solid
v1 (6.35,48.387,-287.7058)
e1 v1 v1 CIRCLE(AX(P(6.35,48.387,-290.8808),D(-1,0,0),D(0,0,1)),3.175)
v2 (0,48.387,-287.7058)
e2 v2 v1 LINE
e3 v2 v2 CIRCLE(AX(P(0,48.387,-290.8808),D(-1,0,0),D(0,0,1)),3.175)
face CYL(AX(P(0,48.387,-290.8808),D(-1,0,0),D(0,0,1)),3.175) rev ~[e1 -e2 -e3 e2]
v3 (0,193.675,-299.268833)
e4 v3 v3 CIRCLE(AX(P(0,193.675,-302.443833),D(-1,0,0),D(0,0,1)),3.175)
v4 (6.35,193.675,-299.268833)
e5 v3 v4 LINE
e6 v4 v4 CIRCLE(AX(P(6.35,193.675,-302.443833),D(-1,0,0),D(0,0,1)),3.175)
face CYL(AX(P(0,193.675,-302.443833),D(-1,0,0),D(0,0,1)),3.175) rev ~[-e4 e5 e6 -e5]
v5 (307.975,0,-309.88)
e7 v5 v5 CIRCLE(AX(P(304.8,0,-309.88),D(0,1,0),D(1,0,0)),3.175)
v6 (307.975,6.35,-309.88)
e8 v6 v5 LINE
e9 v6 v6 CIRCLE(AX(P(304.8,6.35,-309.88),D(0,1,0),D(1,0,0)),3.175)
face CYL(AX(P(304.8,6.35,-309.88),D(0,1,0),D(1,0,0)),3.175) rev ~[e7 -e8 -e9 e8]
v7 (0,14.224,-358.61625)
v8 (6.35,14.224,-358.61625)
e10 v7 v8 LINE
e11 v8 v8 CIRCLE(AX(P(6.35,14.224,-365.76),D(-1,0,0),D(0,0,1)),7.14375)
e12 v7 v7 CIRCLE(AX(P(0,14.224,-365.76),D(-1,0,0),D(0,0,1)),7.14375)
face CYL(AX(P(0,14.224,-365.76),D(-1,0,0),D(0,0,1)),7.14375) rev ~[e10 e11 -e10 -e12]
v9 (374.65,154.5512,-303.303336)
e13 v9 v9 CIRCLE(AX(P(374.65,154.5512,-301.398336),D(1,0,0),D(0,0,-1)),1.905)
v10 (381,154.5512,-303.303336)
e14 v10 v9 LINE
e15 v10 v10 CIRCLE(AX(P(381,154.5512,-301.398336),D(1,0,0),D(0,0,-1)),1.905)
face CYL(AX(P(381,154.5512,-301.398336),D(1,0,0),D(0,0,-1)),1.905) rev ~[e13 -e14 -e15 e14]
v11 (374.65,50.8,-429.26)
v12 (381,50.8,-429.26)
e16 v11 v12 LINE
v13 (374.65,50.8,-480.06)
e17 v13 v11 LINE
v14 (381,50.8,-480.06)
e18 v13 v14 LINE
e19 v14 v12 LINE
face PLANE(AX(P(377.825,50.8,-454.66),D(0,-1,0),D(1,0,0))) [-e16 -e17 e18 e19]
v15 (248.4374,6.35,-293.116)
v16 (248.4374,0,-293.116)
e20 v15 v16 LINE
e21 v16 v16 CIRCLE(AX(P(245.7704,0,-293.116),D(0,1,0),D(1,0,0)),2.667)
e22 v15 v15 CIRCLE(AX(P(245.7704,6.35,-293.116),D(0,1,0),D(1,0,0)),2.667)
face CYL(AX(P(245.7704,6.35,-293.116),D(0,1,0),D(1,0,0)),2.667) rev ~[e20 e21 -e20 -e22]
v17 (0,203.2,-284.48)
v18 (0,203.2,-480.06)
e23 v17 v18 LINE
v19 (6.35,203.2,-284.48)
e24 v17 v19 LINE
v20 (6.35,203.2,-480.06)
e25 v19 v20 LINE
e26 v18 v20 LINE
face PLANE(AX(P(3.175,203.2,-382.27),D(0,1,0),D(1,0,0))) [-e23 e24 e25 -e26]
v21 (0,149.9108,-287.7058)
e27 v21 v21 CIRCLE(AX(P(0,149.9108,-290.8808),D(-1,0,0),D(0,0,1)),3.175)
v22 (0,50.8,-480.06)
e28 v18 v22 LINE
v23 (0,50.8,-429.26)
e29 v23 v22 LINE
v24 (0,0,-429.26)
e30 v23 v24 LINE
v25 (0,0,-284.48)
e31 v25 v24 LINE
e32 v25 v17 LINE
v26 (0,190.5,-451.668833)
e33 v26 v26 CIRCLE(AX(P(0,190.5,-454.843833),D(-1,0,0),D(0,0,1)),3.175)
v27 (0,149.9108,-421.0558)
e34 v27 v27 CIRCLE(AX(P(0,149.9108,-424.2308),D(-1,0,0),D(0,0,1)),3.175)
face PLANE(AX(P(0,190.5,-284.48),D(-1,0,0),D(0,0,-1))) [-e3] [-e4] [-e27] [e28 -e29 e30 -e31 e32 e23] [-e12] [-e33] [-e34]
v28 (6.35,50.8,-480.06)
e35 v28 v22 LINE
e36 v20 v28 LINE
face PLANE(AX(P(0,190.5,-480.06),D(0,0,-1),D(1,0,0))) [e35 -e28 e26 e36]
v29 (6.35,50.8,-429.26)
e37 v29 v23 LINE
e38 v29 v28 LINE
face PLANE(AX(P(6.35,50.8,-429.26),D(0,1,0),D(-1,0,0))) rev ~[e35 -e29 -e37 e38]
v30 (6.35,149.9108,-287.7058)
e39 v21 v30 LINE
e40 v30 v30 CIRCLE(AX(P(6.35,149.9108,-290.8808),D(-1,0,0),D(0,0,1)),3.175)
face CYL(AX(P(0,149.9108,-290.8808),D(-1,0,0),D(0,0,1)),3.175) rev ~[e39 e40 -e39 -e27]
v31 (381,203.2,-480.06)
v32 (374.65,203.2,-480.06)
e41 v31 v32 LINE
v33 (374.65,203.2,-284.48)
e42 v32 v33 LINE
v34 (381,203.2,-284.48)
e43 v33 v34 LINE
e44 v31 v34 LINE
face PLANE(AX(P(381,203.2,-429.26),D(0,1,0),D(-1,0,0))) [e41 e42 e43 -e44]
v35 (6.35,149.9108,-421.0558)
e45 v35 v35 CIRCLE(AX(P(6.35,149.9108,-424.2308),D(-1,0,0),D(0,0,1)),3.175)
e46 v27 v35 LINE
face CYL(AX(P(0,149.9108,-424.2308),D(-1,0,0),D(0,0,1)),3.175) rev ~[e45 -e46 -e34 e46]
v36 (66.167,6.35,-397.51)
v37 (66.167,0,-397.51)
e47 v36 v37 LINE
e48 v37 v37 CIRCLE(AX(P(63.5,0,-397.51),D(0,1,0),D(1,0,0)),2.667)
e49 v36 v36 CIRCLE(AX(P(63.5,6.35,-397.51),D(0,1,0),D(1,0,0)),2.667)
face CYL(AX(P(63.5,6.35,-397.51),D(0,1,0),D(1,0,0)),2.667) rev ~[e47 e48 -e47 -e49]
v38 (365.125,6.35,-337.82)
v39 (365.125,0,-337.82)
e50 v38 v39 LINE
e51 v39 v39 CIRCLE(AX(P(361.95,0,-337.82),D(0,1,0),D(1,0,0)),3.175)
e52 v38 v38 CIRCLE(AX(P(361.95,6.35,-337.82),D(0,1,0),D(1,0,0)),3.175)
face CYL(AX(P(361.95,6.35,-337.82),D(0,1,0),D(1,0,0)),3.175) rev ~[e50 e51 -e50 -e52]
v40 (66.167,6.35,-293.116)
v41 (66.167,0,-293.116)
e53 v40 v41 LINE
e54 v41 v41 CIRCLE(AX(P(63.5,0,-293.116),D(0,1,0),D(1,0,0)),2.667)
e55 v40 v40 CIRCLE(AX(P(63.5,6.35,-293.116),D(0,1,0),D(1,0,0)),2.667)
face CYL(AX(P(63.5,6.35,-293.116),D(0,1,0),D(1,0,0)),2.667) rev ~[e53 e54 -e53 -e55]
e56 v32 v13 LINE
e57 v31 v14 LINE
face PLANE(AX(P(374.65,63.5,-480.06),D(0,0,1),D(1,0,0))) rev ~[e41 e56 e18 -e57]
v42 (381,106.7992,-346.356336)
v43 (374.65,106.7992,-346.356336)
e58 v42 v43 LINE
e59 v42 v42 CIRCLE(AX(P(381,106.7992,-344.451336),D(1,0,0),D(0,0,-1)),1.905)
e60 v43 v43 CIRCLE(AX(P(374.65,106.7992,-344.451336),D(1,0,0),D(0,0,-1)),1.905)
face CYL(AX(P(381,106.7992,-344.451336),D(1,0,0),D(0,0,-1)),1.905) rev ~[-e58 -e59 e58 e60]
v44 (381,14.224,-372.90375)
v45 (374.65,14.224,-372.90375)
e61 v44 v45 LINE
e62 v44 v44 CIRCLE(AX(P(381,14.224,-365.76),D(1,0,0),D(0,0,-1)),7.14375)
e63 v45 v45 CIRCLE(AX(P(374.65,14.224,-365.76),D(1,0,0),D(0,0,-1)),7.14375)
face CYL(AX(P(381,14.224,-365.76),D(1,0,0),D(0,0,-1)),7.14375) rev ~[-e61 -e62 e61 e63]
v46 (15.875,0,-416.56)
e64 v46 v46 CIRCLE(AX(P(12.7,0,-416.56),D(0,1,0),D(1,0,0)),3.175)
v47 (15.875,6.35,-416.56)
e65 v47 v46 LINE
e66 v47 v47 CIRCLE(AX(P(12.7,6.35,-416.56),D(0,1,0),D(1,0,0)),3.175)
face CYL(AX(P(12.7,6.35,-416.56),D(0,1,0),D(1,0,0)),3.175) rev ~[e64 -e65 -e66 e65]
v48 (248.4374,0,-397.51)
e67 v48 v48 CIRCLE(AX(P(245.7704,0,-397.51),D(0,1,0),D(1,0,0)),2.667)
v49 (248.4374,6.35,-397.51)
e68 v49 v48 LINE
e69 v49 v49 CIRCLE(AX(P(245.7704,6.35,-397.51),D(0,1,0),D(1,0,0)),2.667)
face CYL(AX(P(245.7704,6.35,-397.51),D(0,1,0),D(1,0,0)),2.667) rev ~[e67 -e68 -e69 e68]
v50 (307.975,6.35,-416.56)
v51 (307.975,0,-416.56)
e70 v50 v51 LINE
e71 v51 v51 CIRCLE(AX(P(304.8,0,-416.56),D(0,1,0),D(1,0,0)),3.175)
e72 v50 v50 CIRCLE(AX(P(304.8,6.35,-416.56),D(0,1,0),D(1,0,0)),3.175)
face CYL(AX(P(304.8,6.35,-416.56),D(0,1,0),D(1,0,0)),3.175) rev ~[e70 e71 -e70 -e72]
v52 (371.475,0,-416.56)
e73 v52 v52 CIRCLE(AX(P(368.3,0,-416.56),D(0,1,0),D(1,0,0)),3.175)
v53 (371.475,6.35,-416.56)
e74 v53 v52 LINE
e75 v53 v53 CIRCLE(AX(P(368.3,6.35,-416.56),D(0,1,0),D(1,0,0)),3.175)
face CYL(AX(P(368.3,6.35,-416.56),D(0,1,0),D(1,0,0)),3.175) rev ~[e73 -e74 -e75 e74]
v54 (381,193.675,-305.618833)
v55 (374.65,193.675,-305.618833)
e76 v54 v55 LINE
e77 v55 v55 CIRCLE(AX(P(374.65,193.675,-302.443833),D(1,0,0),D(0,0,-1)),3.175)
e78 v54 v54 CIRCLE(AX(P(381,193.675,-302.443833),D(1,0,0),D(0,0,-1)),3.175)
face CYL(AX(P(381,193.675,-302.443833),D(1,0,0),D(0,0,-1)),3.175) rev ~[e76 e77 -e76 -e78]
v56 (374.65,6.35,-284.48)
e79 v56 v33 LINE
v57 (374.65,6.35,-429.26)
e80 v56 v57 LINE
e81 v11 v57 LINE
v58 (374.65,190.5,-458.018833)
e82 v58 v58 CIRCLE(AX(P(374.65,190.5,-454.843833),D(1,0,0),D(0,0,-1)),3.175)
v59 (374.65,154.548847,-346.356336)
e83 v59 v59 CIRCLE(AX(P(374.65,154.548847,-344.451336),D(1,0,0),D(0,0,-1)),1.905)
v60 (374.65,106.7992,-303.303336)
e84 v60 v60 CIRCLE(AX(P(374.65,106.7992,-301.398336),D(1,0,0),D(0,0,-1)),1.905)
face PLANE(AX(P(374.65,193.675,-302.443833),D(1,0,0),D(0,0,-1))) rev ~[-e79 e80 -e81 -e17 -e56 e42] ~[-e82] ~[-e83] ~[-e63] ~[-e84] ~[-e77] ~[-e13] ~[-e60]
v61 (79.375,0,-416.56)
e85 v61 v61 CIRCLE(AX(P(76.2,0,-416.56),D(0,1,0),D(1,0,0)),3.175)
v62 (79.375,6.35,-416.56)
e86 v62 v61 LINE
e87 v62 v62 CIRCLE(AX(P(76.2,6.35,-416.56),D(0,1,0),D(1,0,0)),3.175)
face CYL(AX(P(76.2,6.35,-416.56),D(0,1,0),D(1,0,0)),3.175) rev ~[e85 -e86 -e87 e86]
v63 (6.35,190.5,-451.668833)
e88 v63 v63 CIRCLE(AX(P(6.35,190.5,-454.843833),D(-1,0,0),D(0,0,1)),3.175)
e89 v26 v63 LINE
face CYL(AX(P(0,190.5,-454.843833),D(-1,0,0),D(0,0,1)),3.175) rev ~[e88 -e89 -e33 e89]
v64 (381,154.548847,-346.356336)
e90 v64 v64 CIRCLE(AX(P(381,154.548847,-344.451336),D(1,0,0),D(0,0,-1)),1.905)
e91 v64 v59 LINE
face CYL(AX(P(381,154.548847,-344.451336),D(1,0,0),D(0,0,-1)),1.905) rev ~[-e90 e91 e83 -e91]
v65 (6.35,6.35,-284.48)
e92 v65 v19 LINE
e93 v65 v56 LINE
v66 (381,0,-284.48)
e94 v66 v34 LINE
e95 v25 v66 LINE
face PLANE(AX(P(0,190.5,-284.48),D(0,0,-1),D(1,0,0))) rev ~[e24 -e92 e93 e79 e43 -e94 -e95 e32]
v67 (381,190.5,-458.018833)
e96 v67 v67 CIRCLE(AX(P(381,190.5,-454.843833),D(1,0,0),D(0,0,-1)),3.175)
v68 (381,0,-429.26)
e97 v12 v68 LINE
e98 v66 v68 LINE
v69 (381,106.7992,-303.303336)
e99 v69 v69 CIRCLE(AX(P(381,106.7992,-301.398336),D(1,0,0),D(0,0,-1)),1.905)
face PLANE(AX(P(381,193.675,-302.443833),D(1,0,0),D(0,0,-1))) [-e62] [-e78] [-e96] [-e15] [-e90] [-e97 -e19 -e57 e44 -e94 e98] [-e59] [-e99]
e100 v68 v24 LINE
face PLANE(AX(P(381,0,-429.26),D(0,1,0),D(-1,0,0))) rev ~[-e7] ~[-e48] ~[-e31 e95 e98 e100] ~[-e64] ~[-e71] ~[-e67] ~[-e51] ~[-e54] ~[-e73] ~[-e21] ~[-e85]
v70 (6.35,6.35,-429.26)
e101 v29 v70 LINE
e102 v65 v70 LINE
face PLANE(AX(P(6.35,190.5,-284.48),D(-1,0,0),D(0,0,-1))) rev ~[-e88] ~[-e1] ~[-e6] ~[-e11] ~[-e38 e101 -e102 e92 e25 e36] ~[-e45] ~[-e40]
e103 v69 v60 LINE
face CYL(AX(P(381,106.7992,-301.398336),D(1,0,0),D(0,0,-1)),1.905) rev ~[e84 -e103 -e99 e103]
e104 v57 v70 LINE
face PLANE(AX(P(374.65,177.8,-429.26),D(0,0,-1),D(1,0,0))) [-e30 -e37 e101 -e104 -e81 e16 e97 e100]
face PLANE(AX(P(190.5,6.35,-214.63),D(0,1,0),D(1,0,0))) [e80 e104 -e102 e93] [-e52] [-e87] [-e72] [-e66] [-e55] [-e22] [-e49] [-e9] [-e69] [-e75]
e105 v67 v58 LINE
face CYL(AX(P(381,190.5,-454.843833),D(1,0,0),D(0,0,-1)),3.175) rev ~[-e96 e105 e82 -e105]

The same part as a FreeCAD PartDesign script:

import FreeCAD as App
import Part
import Sketcher

V = App.Vector
Q = App.Units.Quantity


def add_polygon(sketch, points):
    """Adds a closed chain of lines whose ends are joined by coincident constraints."""
    first, n = sketch.GeometryCount, len(points)
    for a, b in zip(points, points[1:] + points[:1]):
        sketch.addGeometry(Part.LineSegment(App.Vector(*a, 0), App.Vector(*b, 0)), False)
    for i in range(n):
        sketch.addConstraint(Sketcher.Constraint("Coincident", first + i, 2, first + (i + 1) % n, 1))

doc = App.newDocument("Part")
body = doc.addObject("PartDesign::Body", "Body")

# Sketch on XZ plane
sketch1 = body.newObject("Sketcher::SketchObject", "Sketch")
sketch1.AttachmentSupport = (doc.getObject("XZ_Plane"), [""])
sketch1.MapMode = "FlatFace"
add_polygon(sketch1, [(0, -429), (0, 0), (381, 0), (381, -429)])  # lines 0-3
sketch1.addConstraint(Sketcher.Constraint("Vertical", 0))
sketch1.addConstraint(Sketcher.Constraint("Horizontal", 1))
sketch1.addConstraint(Sketcher.Constraint("Vertical", 2))
sketch1.addConstraint(Sketcher.Constraint("Horizontal", 3))
sketch1.addConstraint(Sketcher.Constraint("Coincident", 0, 2, -1, 1))
sketch1.addConstraint(Sketcher.Constraint("DistanceX", 1, 1, 1, 2, Q("15 in")))
sketch1.addConstraint(Sketcher.Constraint("DistanceY", 0, 1, 0, 2, Q("16.9 in")))
pad1 = body.newObject("PartDesign::Pad", "Pad")
pad1.Profile = sketch1
pad1.Length = Q("0.25 in")
pad1.Reversed = True

# Sketch on XZ plane
sketch2 = body.newObject("Sketcher::SketchObject", "Sketch001")
sketch2.AttachmentSupport = (doc.getObject("XZ_Plane"), [""])
sketch2.MapMode = "FlatFace"
sketch2.AttachmentOffset = App.Placement(V(0, 0, -0.25 * 25.4), App.Rotation())
add_polygon(sketch2, [(64, -203), (64, 0), (318, 0), (318, -203)])  # lines 0-3
sketch2.addConstraint(Sketcher.Constraint("Vertical", 0))
sketch2.addConstraint(Sketcher.Constraint("Horizontal", 1))
sketch2.addConstraint(Sketcher.Constraint("Vertical", 2))
sketch2.addConstraint(Sketcher.Constraint("Horizontal", 3))
sketch2.addConstraint(Sketcher.Constraint("PointOnObject", 0, 2, -1))
sketch2.addConstraint(Sketcher.Constraint("DistanceX", 1, 1, 1, 2, Q("10 in")))
sketch2.addConstraint(Sketcher.Constraint("DistanceY", 0, 1, 0, 2, Q("8 in")))
sketch2.addConstraint(Sketcher.Constraint("DistanceX", -1, 1, 0, 2, Q("2.5 in")))
pocket1 = body.newObject("PartDesign::Pocket", "Pocket")
pocket1.Profile = sketch2
pocket1.Length = Q("0.25 in")
pocket1.Reversed = True

# Sketch on XZ plane
sketch3 = body.newObject("Sketcher::SketchObject", "Sketch002")
sketch3.AttachmentSupport = (doc.getObject("XZ_Plane"), [""])
sketch3.MapMode = "FlatFace"
sketch3.AttachmentOffset = App.Placement(V(0, 0, -0.25 * 25.4), App.Rotation())
add_polygon(sketch3, [(0, -74), (0, 0), (381, 0), (381, -74)])  # lines 0-3
sketch3.addConstraint(Sketcher.Constraint("Vertical", 0))
sketch3.addConstraint(Sketcher.Constraint("Horizontal", 1))
sketch3.addConstraint(Sketcher.Constraint("Vertical", 2))
sketch3.addConstraint(Sketcher.Constraint("Horizontal", 3))
sketch3.addConstraint(Sketcher.Constraint("Coincident", 0, 2, -1, 1))
sketch3.addConstraint(Sketcher.Constraint("DistanceX", 1, 1, 1, 2, Q("15 in")))
sketch3.addConstraint(Sketcher.Constraint("DistanceY", 0, 1, 0, 2, Q("2.9 in")))
pocket2 = body.newObject("PartDesign::Pocket", "Pocket001")
pocket2.Profile = sketch3
pocket2.Length = Q("0.25 in")
pocket2.Reversed = True

# Sketch on XY plane
sketch4 = body.newObject("Sketcher::SketchObject", "Sketch003")
sketch4.AttachmentSupport = (doc.getObject("XY_Plane"), [""])
sketch4.MapMode = "FlatFace"
sketch4.AttachmentOffset = App.Placement(V(0, 0, -8 * 25.4), App.Rotation())
add_polygon(sketch4, [(64, 6), (64, 0), (318, 0), (318, 6)])  # lines 0-3
sketch4.addConstraint(Sketcher.Constraint("Vertical", 0))
sketch4.addConstraint(Sketcher.Constraint("Horizontal", 1))
sketch4.addConstraint(Sketcher.Constraint("Vertical", 2))
sketch4.addConstraint(Sketcher.Constraint("Horizontal", 3))
sketch4.addConstraint(Sketcher.Constraint("PointOnObject", 0, 2, -1))
sketch4.addConstraint(Sketcher.Constraint("DistanceX", 1, 1, 1, 2, Q("10 in")))
sketch4.addConstraint(Sketcher.Constraint("DistanceY", 0, 2, 0, 1, Q("0.25 in")))
sketch4.addConstraint(Sketcher.Constraint("DistanceX", -1, 1, 0, 2, Q("2.5 in")))
pocket3 = body.newObject("PartDesign::Pocket", "Pocket002")
pocket3.Profile = sketch4
pocket3.Length = Q("2.9 in")

# Sketch on XZ plane
sketch5 = body.newObject("Sketcher::SketchObject", "Sketch004")
sketch5.AttachmentSupport = (doc.getObject("XZ_Plane"), [""])
sketch5.MapMode = "FlatFace"
sketch5.AttachmentOffset = App.Placement(V(0, 0, -0.25 * 25.4), App.Rotation())
add_polygon(sketch5, [(375, -429), (375, -234), (381, -234), (381, -429)])  # lines 0-3
sketch5.addConstraint(Sketcher.Constraint("Vertical", 0))
sketch5.addConstraint(Sketcher.Constraint("Horizontal", 1))
sketch5.addConstraint(Sketcher.Constraint("Vertical", 2))
sketch5.addConstraint(Sketcher.Constraint("Horizontal", 3))
sketch5.addConstraint(Sketcher.Constraint("DistanceY", 0, 1, 0, 2, Q("7.7 in")))
sketch5.addConstraint(Sketcher.Constraint("DistanceX", -1, 1, 1, 2, Q("15 in")))
sketch5.addConstraint(Sketcher.Constraint("DistanceX", 1, 1, 1, 2, Q("0.25 in")))
sketch5.addConstraint(Sketcher.Constraint("DistanceY", 0, 2, -1, 1, Q("9.2 in")))
pad2 = body.newObject("PartDesign::Pad", "Pad001")
pad2.Profile = sketch5
pad2.Length = Q("6.75 in")
pad2.Reversed = True

# Sketch on XZ plane
sketch6 = body.newObject("Sketcher::SketchObject", "Sketch005")
sketch6.AttachmentSupport = (doc.getObject("XZ_Plane"), [""])
sketch6.MapMode = "FlatFace"
sketch6.AttachmentOffset = App.Placement(V(0, 0, -0.25 * 25.4), App.Rotation())
add_polygon(sketch6, [(0, -429), (0, -234), (6, -234), (6, -429)])  # lines 0-3
sketch6.addConstraint(Sketcher.Constraint("Vertical", 0))
sketch6.addConstraint(Sketcher.Constraint("Horizontal", 1))
sketch6.addConstraint(Sketcher.Constraint("Vertical", 2))
sketch6.addConstraint(Sketcher.Constraint("Horizontal", 3))
sketch6.addConstraint(Sketcher.Constraint("PointOnObject", 0, 2, -2))
sketch6.addConstraint(Sketcher.Constraint("DistanceY", 0, 1, 0, 2, Q("7.7 in")))
sketch6.addConstraint(Sketcher.Constraint("DistanceX", 1, 1, 1, 2, Q("0.25 in")))
sketch6.addConstraint(Sketcher.Constraint("DistanceY", 0, 2, -1, 1, Q("9.2 in")))
pad3 = body.newObject("PartDesign::Pad", "Pad002")
pad3.Profile = sketch6
pad3.Length = Q("6.25 in")
pad3.Reversed = True

# Sketch on XY plane
sketch7 = body.newObject("Sketcher::SketchObject", "Sketch006")
sketch7.AttachmentSupport = (doc.getObject("XY_Plane"), [""])
sketch7.MapMode = "FlatFace"
sketch7.AttachmentOffset = App.Placement(V(0, 0, -16.9 * 25.4), App.Rotation())
add_polygon(sketch7, [(6, 165), (6, 0), (0, 0), (0, 165)])  # lines 0-3
sketch7.addConstraint(Sketcher.Constraint("Vertical", 0))
sketch7.addConstraint(Sketcher.Constraint("Horizontal", 1))
sketch7.addConstraint(Sketcher.Constraint("Vertical", 2))
sketch7.addConstraint(Sketcher.Constraint("Horizontal", 3))
sketch7.addConstraint(Sketcher.Constraint("Coincident", 1, 2, -1, 1))
sketch7.addConstraint(Sketcher.Constraint("DistanceY", 0, 2, 0, 1, Q("6.5 in")))
sketch7.addConstraint(Sketcher.Constraint("DistanceX", 1, 2, 1, 1, Q("0.25 in")))
pad4 = body.newObject("PartDesign::Pad", "Pad003")
pad4.Profile = sketch7
pad4.Length = Q("2 in")
pad4.Reversed = True

# Sketch on XY plane
sketch8 = body.newObject("Sketcher::SketchObject", "Sketch007")
sketch8.AttachmentSupport = (doc.getObject("XY_Plane"), [""])
sketch8.MapMode = "FlatFace"
sketch8.AttachmentOffset = App.Placement(V(0, 0, -9.2 * 25.4), App.Rotation())
add_polygon(sketch8, [(0, 165), (0, 6), (6, 6), (6, 165)])  # lines 0-3
sketch8.addConstraint(Sketcher.Constraint("Vertical", 0))
sketch8.addConstraint(Sketcher.Constraint("Horizontal", 1))
sketch8.addConstraint(Sketcher.Constraint("Vertical", 2))
sketch8.addConstraint(Sketcher.Constraint("Horizontal", 3))
sketch8.addConstraint(Sketcher.Constraint("PointOnObject", 0, 2, -2))
sketch8.addConstraint(Sketcher.Constraint("DistanceX", 1, 1, 1, 2, Q("0.25 in")))
sketch8.addConstraint(Sketcher.Constraint("DistanceY", 0, 2, 0, 1, Q("6.25 in")))
sketch8.addConstraint(Sketcher.Constraint("DistanceY", -1, 1, 2, 2, Q("6.5 in")))
pocket4 = body.newObject("PartDesign::Pocket", "Pocket003")
pocket4.Profile = sketch8
pocket4.Length = Q("2 in")

# Sketch on XY plane
sketch9 = body.newObject("Sketcher::SketchObject", "Sketch008")
sketch9.AttachmentSupport = (doc.getObject("XY_Plane"), [""])
sketch9.MapMode = "FlatFace"
sketch9.AttachmentOffset = App.Placement(V(0, 0, -16.9 * 25.4), App.Rotation())
add_polygon(sketch9, [(381, 178), (381, 0), (374, 0), (374, 178)])  # lines 0-3
sketch9.addConstraint(Sketcher.Constraint("Vertical", 0))
sketch9.addConstraint(Sketcher.Constraint("Horizontal", 1))
sketch9.addConstraint(Sketcher.Constraint("Vertical", 2))
sketch9.addConstraint(Sketcher.Constraint("Horizontal", 3))
sketch9.addConstraint(Sketcher.Constraint("PointOnObject", 0, 2, -1))
sketch9.addConstraint(Sketcher.Constraint("DistanceY", 0, 2, 0, 1, Q("7 in")))
sketch9.addConstraint(Sketcher.Constraint("DistanceX", -1, 1, 0, 2, Q("15 in")))
sketch9.addConstraint(Sketcher.Constraint("DistanceX", 1, 2, 1, 1, 6.89994))
pad5 = body.newObject("PartDesign::Pad", "Pad004")
pad5.Profile = sketch9
pad5.Length = Q("2 in")
pad5.Reversed = True

# Sketch on XY plane
sketch10 = body.newObject("Sketcher::SketchObject", "Sketch009")
sketch10.AttachmentSupport = (doc.getObject("XY_Plane"), [""])
sketch10.MapMode = "FlatFace"
sketch10.AttachmentOffset = App.Placement(V(0, 0, -9.2 * 25.4), App.Rotation())
add_polygon(sketch10, [(375, 178), (375, 6), (381, 6), (381, 178)])  # lines 0-3
sketch10.addConstraint(Sketcher.Constraint("Vertical", 0))
sketch10.addConstraint(Sketcher.Constraint("Horizontal", 1))
sketch10.addConstraint(Sketcher.Constraint("Vertical", 2))
sketch10.addConstraint(Sketcher.Constraint("Horizontal", 3))
sketch10.addConstraint(Sketcher.Constraint("DistanceX", -1, 1, 1, 2, Q("15 in")))
sketch10.addConstraint(Sketcher.Constraint("DistanceY", -1, 1, 2, 2, Q("7 in")))
sketch10.addConstraint(Sketcher.Constraint("DistanceX", 1, 1, 1, 2, Q("0.25 in")))
sketch10.addConstraint(Sketcher.Constraint("DistanceY", 0, 2, 0, 1, Q("6.75 in")))
pocket5 = body.newObject("PartDesign::Pocket", "Pocket004")
pocket5.Profile = sketch10
pocket5.Length = Q("2 in")

# Sketch on XY plane
sketch11 = body.newObject("Sketcher::SketchObject", "Sketch010")
sketch11.AttachmentSupport = (doc.getObject("XY_Plane"), [""])
sketch11.MapMode = "FlatFace"
sketch11.AttachmentOffset = App.Placement(V(0, 0, -16.9 * 25.4), App.Rotation())
add_polygon(sketch11, [(374.10006, 177.8), (374.10006, 6.35), (374.65, 6.35), (374.65, 177.8)])  # lines 0-3
sketch11.addConstraint(Sketcher.Constraint("Vertical", 0))
sketch11.addConstraint(Sketcher.Constraint("Horizontal", 1))
sketch11.addConstraint(Sketcher.Constraint("Vertical", 2))
sketch11.addConstraint(Sketcher.Constraint("Horizontal", 3))
sketch11.addConstraint(Sketcher.Constraint("DistanceY", -1, 1, 2, 2, Q("7 in")))
sketch11.addConstraint(Sketcher.Constraint("DistanceY", 0, 2, 0, 1, Q("6.75 in")))
sketch11.addConstraint(Sketcher.Constraint("DistanceX", -1, 1, 1, 2, Q("14.75 in")))
sketch11.addConstraint(Sketcher.Constraint("DistanceX", 1, 1, 1, 2, 0.54994))
pocket6 = body.newObject("PartDesign::Pocket", "Pocket005")
pocket6.Profile = sketch11
pocket6.Length = Q("2 in")

# Sketch on XY plane
sketch12 = body.newObject("Sketcher::SketchObject", "Sketch011")
sketch12.AttachmentSupport = (doc.getObject("XY_Plane"), [""])
sketch12.MapMode = "FlatFace"
sketch12.AttachmentOffset = App.Placement(V(0, 0, -18.9 * 25.4), App.Rotation())
add_polygon(sketch12, [(381, 178), (381, 0), (374, 0), (374, 178)])  # lines 0-3
sketch12.addConstraint(Sketcher.Constraint("Vertical", 0))
sketch12.addConstraint(Sketcher.Constraint("Horizontal", 1))
sketch12.addConstraint(Sketcher.Constraint("Vertical", 2))
sketch12.addConstraint(Sketcher.Constraint("Horizontal", 3))
sketch12.addConstraint(Sketcher.Constraint("PointOnObject", 0, 2, -1))
sketch12.addConstraint(Sketcher.Constraint("DistanceY", 0, 2, 0, 1, Q("7 in")))
sketch12.addConstraint(Sketcher.Constraint("DistanceX", -1, 1, 0, 2, Q("15 in")))
sketch12.addConstraint(Sketcher.Constraint("DistanceX", 1, 2, 1, 1, 6.89994))
pocket7 = body.newObject("PartDesign::Pocket", "Pocket006")
pocket7.Profile = sketch12
pocket7.Length = Q("2 in")
pocket7.Reversed = True

# Sketch on XY plane
sketch13 = body.newObject("Sketcher::SketchObject", "Sketch012")
sketch13.AttachmentSupport = (doc.getObject("XY_Plane"), [""])
sketch13.MapMode = "FlatFace"
sketch13.AttachmentOffset = App.Placement(V(0, 0, -18.9 * 25.4), App.Rotation())
add_polygon(sketch13, [(6, 165), (6, 0), (0, 0), (0, 165)])  # lines 0-3
sketch13.addConstraint(Sketcher.Constraint("Vertical", 0))
sketch13.addConstraint(Sketcher.Constraint("Horizontal", 1))
sketch13.addConstraint(Sketcher.Constraint("Vertical", 2))
sketch13.addConstraint(Sketcher.Constraint("Horizontal", 3))
sketch13.addConstraint(Sketcher.Constraint("Coincident", 1, 2, -1, 1))
sketch13.addConstraint(Sketcher.Constraint("DistanceY", 0, 2, 0, 1, Q("6.5 in")))
sketch13.addConstraint(Sketcher.Constraint("DistanceX", 1, 2, 1, 1, Q("0.25 in")))
pocket8 = body.newObject("PartDesign::Pocket", "Pocket007")
pocket8.Profile = sketch13
pocket8.Length = Q("2 in")
pocket8.Reversed = True

# Sketch on XZ plane
sketch14 = body.newObject("Sketcher::SketchObject", "Sketch013")
sketch14.AttachmentSupport = (doc.getObject("XZ_Plane"), [""])
sketch14.MapMode = "FlatFace"
sketch14.AttachmentOffset = App.Placement(V(0, 0, -7 * 25.4), App.Rotation())
add_polygon(sketch14, [(375, -429), (375, -284), (381, -284), (381, -429)])  # lines 0-3
sketch14.addConstraint(Sketcher.Constraint("Vertical", 0))
sketch14.addConstraint(Sketcher.Constraint("Horizontal", 1))
sketch14.addConstraint(Sketcher.Constraint("Vertical", 2))
sketch14.addConstraint(Sketcher.Constraint("Horizontal", 3))
sketch14.addConstraint(Sketcher.Constraint("DistanceY", 0, 1, 0, 2, Q("5.7 in")))
sketch14.addConstraint(Sketcher.Constraint("DistanceX", -1, 1, 1, 2, Q("15 in")))
sketch14.addConstraint(Sketcher.Constraint("DistanceX", 1, 1, 1, 2, Q("0.25 in")))
sketch14.addConstraint(Sketcher.Constraint("DistanceY", 0, 2, -1, 1, Q("11.2 in")))
pad6 = body.newObject("PartDesign::Pad", "Pad005")
pad6.Profile = sketch14
pad6.Length = Q("1 in")
pad6.Reversed = True

# Sketch on XZ plane
sketch15 = body.newObject("Sketcher::SketchObject", "Sketch014")
sketch15.AttachmentSupport = (doc.getObject("XZ_Plane"), [""])
sketch15.MapMode = "FlatFace"
sketch15.AttachmentOffset = App.Placement(V(0, 0, -6.5 * 25.4), App.Rotation())
add_polygon(sketch15, [(0, -429), (0, -284), (6, -284), (6, -429)])  # lines 0-3
sketch15.addConstraint(Sketcher.Constraint("Vertical", 0))
sketch15.addConstraint(Sketcher.Constraint("Horizontal", 1))
sketch15.addConstraint(Sketcher.Constraint("Vertical", 2))
sketch15.addConstraint(Sketcher.Constraint("Horizontal", 3))
sketch15.addConstraint(Sketcher.Constraint("PointOnObject", 0, 2, -2))
sketch15.addConstraint(Sketcher.Constraint("DistanceY", 0, 1, 0, 2, Q("5.7 in")))
sketch15.addConstraint(Sketcher.Constraint("DistanceX", 1, 1, 1, 2, Q("0.25 in")))
sketch15.addConstraint(Sketcher.Constraint("DistanceY", 0, 2, -1, 1, Q("11.2 in")))
pad7 = body.newObject("PartDesign::Pad", "Pad006")
pad7.Profile = sketch15
pad7.Length = Q("0.75 in")

# Sketch on XY plane
sketch16 = body.newObject("Sketcher::SketchObject", "Sketch015")
sketch16.AttachmentSupport = (doc.getObject("XY_Plane"), [""])
sketch16.MapMode = "FlatFace"
sketch16.AttachmentOffset = App.Placement(V(0, 0, -16.9 * 25.4), App.Rotation())
add_polygon(sketch16, [(6, 190), (6, 51), (0, 51), (0, 190)])  # lines 0-3
sketch16.addConstraint(Sketcher.Constraint("Vertical", 0))
sketch16.addConstraint(Sketcher.Constraint("Horizontal", 1))
sketch16.addConstraint(Sketcher.Constraint("Vertical", 2))
sketch16.addConstraint(Sketcher.Constraint("Horizontal", 3))
sketch16.addConstraint(Sketcher.Constraint("PointOnObject", 1, 2, -2))
sketch16.addConstraint(Sketcher.Constraint("DistanceY", 0, 2, 0, 1, Q("5.5 in")))
sketch16.addConstraint(Sketcher.Constraint("DistanceY", -1, 1, 0, 2, Q("2 in")))
sketch16.addConstraint(Sketcher.Constraint("DistanceX", 1, 2, 1, 1, Q("0.25 in")))
pad8 = body.newObject("PartDesign::Pad", "Pad007")
pad8.Profile = sketch16
pad8.Length = Q("2 in")
pad8.Reversed = True

# Sketch on XZ plane
sketch17 = body.newObject("Sketcher::SketchObject", "Sketch016")
sketch17.AttachmentSupport = (doc.getObject("XZ_Plane"), [""])
sketch17.MapMode = "FlatFace"
sketch17.AttachmentOffset = App.Placement(V(0, 0, -7.5 * 25.4), App.Rotation())
add_polygon(sketch17, [(0, -480), (0, -284), (6, -284), (6, -480)])  # lines 0-3
sketch17.addConstraint(Sketcher.Constraint("Vertical", 0))
sketch17.addConstraint(Sketcher.Constraint("Horizontal", 1))
sketch17.addConstraint(Sketcher.Constraint("Vertical", 2))
sketch17.addConstraint(Sketcher.Constraint("Horizontal", 3))
sketch17.addConstraint(Sketcher.Constraint("PointOnObject", 0, 2, -2))
sketch17.addConstraint(Sketcher.Constraint("DistanceY", 0, 1, 0, 2, Q("7.7 in")))
sketch17.addConstraint(Sketcher.Constraint("DistanceX", 1, 1, 1, 2, Q("0.25 in")))
sketch17.addConstraint(Sketcher.Constraint("DistanceY", 0, 2, -1, 1, Q("11.2 in")))
pad9 = body.newObject("PartDesign::Pad", "Pad008")
pad9.Profile = sketch17
pad9.Length = Q("1.25 in")

# Sketch on XY plane
sketch18 = body.newObject("Sketcher::SketchObject", "Sketch017")
sketch18.AttachmentSupport = (doc.getObject("XY_Plane"), [""])
sketch18.MapMode = "FlatFace"
sketch18.AttachmentOffset = App.Placement(V(0, 0, -16.9 * 25.4), App.Rotation())
add_polygon(sketch18, [(381, 203), (381, 64), (375, 64), (375, 203)])  # lines 0-3
sketch18.addConstraint(Sketcher.Constraint("Vertical", 0))
sketch18.addConstraint(Sketcher.Constraint("Horizontal", 1))
sketch18.addConstraint(Sketcher.Constraint("Vertical", 2))
sketch18.addConstraint(Sketcher.Constraint("Horizontal", 3))
sketch18.addConstraint(Sketcher.Constraint("DistanceY", 0, 2, 0, 1, Q("5.5 in")))
sketch18.addConstraint(Sketcher.Constraint("DistanceX", -1, 1, 0, 2, Q("15 in")))
sketch18.addConstraint(Sketcher.Constraint("DistanceY", -1, 1, 2, 2, Q("8 in")))
sketch18.addConstraint(Sketcher.Constraint("DistanceX", 1, 2, 1, 1, Q("0.25 in")))
pad10 = body.newObject("PartDesign::Pad", "Pad009")
pad10.Profile = sketch18
pad10.Length = Q("2 in")
pad10.Reversed = True

# Sketch on XZ plane
sketch19 = body.newObject("Sketcher::SketchObject", "Sketch018")
sketch19.AttachmentSupport = (doc.getObject("XZ_Plane"), [""])
sketch19.MapMode = "FlatFace"
sketch19.AttachmentOffset = App.Placement(V(0, 0, -8 * 25.4), App.Rotation())
add_polygon(sketch19, [(375, -480), (375, -284), (381, -284), (381, -480)])  # lines 0-3
sketch19.addConstraint(Sketcher.Constraint("Vertical", 0))
sketch19.addConstraint(Sketcher.Constraint("Horizontal", 1))
sketch19.addConstraint(Sketcher.Constraint("Vertical", 2))
sketch19.addConstraint(Sketcher.Constraint("Horizontal", 3))
sketch19.addConstraint(Sketcher.Constraint("DistanceY", 0, 1, 0, 2, Q("7.7 in")))
sketch19.addConstraint(Sketcher.Constraint("DistanceX", -1, 1, 1, 2, Q("15 in")))
sketch19.addConstraint(Sketcher.Constraint("DistanceX", 1, 1, 1, 2, Q("0.25 in")))
sketch19.addConstraint(Sketcher.Constraint("DistanceY", 0, 2, -1, 1, Q("11.2 in")))
pad11 = body.newObject("PartDesign::Pad", "Pad010")
pad11.Profile = sketch19
pad11.Length = Q("2 in")

# Sketch on XZ plane
sketch20 = body.newObject("Sketcher::SketchObject", "Sketch019")
sketch20.AttachmentSupport = (doc.getObject("XZ_Plane"), [""])
sketch20.MapMode = "FlatFace"
sketch20.AttachmentOffset = App.Placement(V(0, 0, -2.5 * 25.4), App.Rotation())
add_polygon(sketch20, [(375, -429), (375, -480), (381, -480), (381, -429)])  # lines 0-3
sketch20.addConstraint(Sketcher.Constraint("Vertical", 0))
sketch20.addConstraint(Sketcher.Constraint("Horizontal", 1))
sketch20.addConstraint(Sketcher.Constraint("Vertical", 2))
sketch20.addConstraint(Sketcher.Constraint("Horizontal", 3))
sketch20.addConstraint(Sketcher.Constraint("DistanceY", 0, 2, 0, 1, Q("2 in")))
sketch20.addConstraint(Sketcher.Constraint("DistanceX", -1, 1, 1, 2, Q("15 in")))
sketch20.addConstraint(Sketcher.Constraint("DistanceX", 1, 1, 1, 2, Q("0.25 in")))
sketch20.addConstraint(Sketcher.Constraint("DistanceY", 0, 2, -1, 1, Q("18.9 in")))
pad12 = body.newObject("PartDesign::Pad", "Pad011")
pad12.Profile = sketch20
pad12.Length = Q("0.5 in")

# Sketch on XZ plane
sketch21 = body.newObject("Sketcher::SketchObject", "Sketch020")
sketch21.AttachmentSupport = (doc.getObject("XZ_Plane"), [""])
sketch21.MapMode = "FlatFace"
sketch21.AttachmentOffset = App.Placement(V(0, 0, -7.5 * 25.4), App.Rotation())
add_polygon(sketch21, [(0, -480), (0, -284), (6, -284), (6, -480)])  # lines 0-3
sketch21.addConstraint(Sketcher.Constraint("Vertical", 0))
sketch21.addConstraint(Sketcher.Constraint("Horizontal", 1))
sketch21.addConstraint(Sketcher.Constraint("Vertical", 2))
sketch21.addConstraint(Sketcher.Constraint("Horizontal", 3))
sketch21.addConstraint(Sketcher.Constraint("PointOnObject", 0, 2, -2))
sketch21.addConstraint(Sketcher.Constraint("DistanceY", 0, 1, 0, 2, Q("7.7 in")))
sketch21.addConstraint(Sketcher.Constraint("DistanceX", 1, 1, 1, 2, Q("0.25 in")))
sketch21.addConstraint(Sketcher.Constraint("DistanceY", 0, 2, -1, 1, Q("11.2 in")))
pad13 = body.newObject("PartDesign::Pad", "Pad012")
pad13.Profile = sketch21
pad13.Length = Q("0.5 in")
pad13.Reversed = True

# Sketch on XZ plane
sketch22 = body.newObject("Sketcher::SketchObject", "Sketch021")
sketch22.AttachmentSupport = (doc.getObject("XZ_Plane"), [""])
sketch22.MapMode = "FlatFace"
sketch22.AttachmentOffset = App.Placement(V(0, 0, -0.25 * 25.4), App.Rotation())
add_polygon(sketch22, [(0, -284), (0, -74), (381, -74), (381, -284)])  # lines 0-3
sketch22.addConstraint(Sketcher.Constraint("Vertical", 0))
sketch22.addConstraint(Sketcher.Constraint("Horizontal", 1))
sketch22.addConstraint(Sketcher.Constraint("Vertical", 2))
sketch22.addConstraint(Sketcher.Constraint("Horizontal", 3))
sketch22.addConstraint(Sketcher.Constraint("PointOnObject", 0, 2, -2))
sketch22.addConstraint(Sketcher.Constraint("DistanceX", 1, 1, 1, 2, Q("15 in")))
sketch22.addConstraint(Sketcher.Constraint("DistanceY", 0, 1, 0, 2, Q("8.3 in")))
sketch22.addConstraint(Sketcher.Constraint("DistanceY", 0, 2, -1, 1, Q("2.9 in")))
pocket9 = body.newObject("PartDesign::Pocket", "Pocket008")
pocket9.Profile = sketch22
pocket9.Length = Q("0.5 in")
pocket9.Reversed = True

# Sketch on YZ plane
sketch23 = body.newObject("Sketcher::SketchObject", "Sketch022")
sketch23.AttachmentSupport = (doc.getObject("YZ_Plane"), [""])
sketch23.MapMode = "FlatFace"
sketch23.addGeometry(Part.Circle(V(14, -366, 0), V(0, 0, 1), 7), False)
sketch23.addConstraint(Sketcher.Constraint("Diameter", 0, Q("0.5625 in")))
sketch23.addConstraint(Sketcher.Constraint("DistanceY", 0, 3, -1, 1, Q("14.4 in")))
sketch23.addConstraint(Sketcher.Constraint("DistanceX", -1, 1, 0, 3, Q("0.56 in")))
pocket10 = body.newObject("PartDesign::Pocket", "Pocket009")
pocket10.Profile = sketch23
pocket10.Length = Q("0.35 in")
pocket10.Reversed = True

# Sketch on YZ plane
sketch24 = body.newObject("Sketcher::SketchObject", "Sketch023")
sketch24.AttachmentSupport = (doc.getObject("YZ_Plane"), [""])
sketch24.MapMode = "FlatFace"
sketch24.AttachmentOffset = App.Placement(V(0, 0, 15 * 25.4), App.Rotation())
sketch24.addGeometry(Part.Circle(V(14, -366, 0), V(0, 0, 1), 7), False)
sketch24.addConstraint(Sketcher.Constraint("Diameter", 0, Q("0.5625 in")))
sketch24.addConstraint(Sketcher.Constraint("DistanceY", 0, 3, -1, 1, Q("14.4 in")))
sketch24.addConstraint(Sketcher.Constraint("DistanceX", -1, 1, 0, 3, Q("0.56 in")))
pocket11 = body.newObject("PartDesign::Pocket", "Pocket010")
pocket11.Profile = sketch24
pocket11.Length = Q("0.35 in")

# Sketch on XZ plane
sketch25 = body.newObject("Sketcher::SketchObject", "Sketch024")
sketch25.AttachmentSupport = (doc.getObject("XZ_Plane"), [""])
sketch25.MapMode = "FlatFace"
sketch25.AttachmentOffset = App.Placement(V(0, 0, -0.25 * 25.4), App.Rotation())
sketch25.addGeometry(Part.Circle(V(368.3, -416.6, 0), V(0, 0, 1), 3.2), False)
sketch25.addGeometry(Part.Circle(V(304.8, -416.6, 0), V(0, 0, 1), 3.2), False)
sketch25.addGeometry(Part.Circle(V(12.7, -416.6, 0), V(0, 0, 1), 3.2), False)
sketch25.addGeometry(Part.Circle(V(76.2, -416.6, 0), V(0, 0, 1), 3.2), False)
sketch25.addConstraint(Sketcher.Constraint("Equal", 0, 1))
sketch25.addConstraint(Sketcher.Constraint("Equal", 1, 2))
sketch25.addConstraint(Sketcher.Constraint("Equal", 2, 3))
sketch25.addConstraint(Sketcher.Constraint("Horizontal", 0, 3, 1, 3))
sketch25.addConstraint(Sketcher.Constraint("Horizontal", 1, 3, 2, 3))
sketch25.addConstraint(Sketcher.Constraint("Horizontal", 2, 3, 3, 3))
sketch25.addConstraint(Sketcher.Constraint("Diameter", 0, Q("0.25 in")))
sketch25.addConstraint(Sketcher.Constraint("DistanceX", -1, 1, 1, 3, Q("12 in")))
sketch25.addConstraint(Sketcher.Constraint("DistanceX", -1, 1, 3, 3, Q("3 in")))
sketch25.addConstraint(Sketcher.Constraint("DistanceX", 2, 3, 0, 3, Q("14 in")))
sketch25.addConstraint(Sketcher.Constraint("DistanceX", -1, 1, 0, 3, Q("14.5 in")))
sketch25.addConstraint(Sketcher.Constraint("DistanceY", 0, 3, -1, 1, Q("16.4 in")))
pocket12 = body.newObject("PartDesign::Pocket", "Pocket011")
pocket12.Profile = sketch25
pocket12.Length = Q("0.5 in")
pocket12.Reversed = True

# Sketch on YZ plane
sketch26 = body.newObject("Sketcher::SketchObject", "Sketch025")
sketch26.AttachmentSupport = (doc.getObject("YZ_Plane"), [""])
sketch26.MapMode = "FlatFace"
sketch26.AttachmentOffset = App.Placement(V(0, 0, 15 * 25.4), App.Rotation())
sketch26.addGeometry(Part.Circle(V(154.5, -344.5, 0), V(0, 0, 1), 1.9), False)
sketch26.addGeometry(Part.Circle(V(154.6, -301.4, 0), V(0, 0, 1), 1.9), False)
sketch26.addGeometry(Part.Circle(V(106.8, -344.5, 0), V(0, 0, 1), 1.9), False)
sketch26.addGeometry(Part.Circle(V(106.8, -301.4, 0), V(0, 0, 1), 1.9), False)
sketch26.addConstraint(Sketcher.Constraint("Equal", 0, 1))
sketch26.addConstraint(Sketcher.Constraint("Equal", 1, 2))
sketch26.addConstraint(Sketcher.Constraint("Equal", 2, 3))
sketch26.addConstraint(Sketcher.Constraint("Horizontal", 0, 3, 2, 3))
sketch26.addConstraint(Sketcher.Constraint("Horizontal", 1, 3, 3, 3))
sketch26.addConstraint(Sketcher.Constraint("Vertical", 2, 3, 3, 3))
sketch26.addConstraint(Sketcher.Constraint("Diameter", 0, Q("0.15 in")))
sketch26.addConstraint(Sketcher.Constraint("DistanceX", 2, 3, 1, 3, Q("1.88 in")))
sketch26.addConstraint(Sketcher.Constraint("DistanceY", 0, 3, 1, 3, Q("1.695 in")))
sketch26.addConstraint(Sketcher.Constraint("DistanceX", -1, 1, 1, 3, 154.5512))
sketch26.addConstraint(Sketcher.Constraint("DistanceX", -1, 1, 0, 3, 154.548847))
sketch26.addConstraint(Sketcher.Constraint("DistanceY", 0, 3, -1, 1, 344.451336))
pocket13 = body.newObject("PartDesign::Pocket", "Pocket012")
pocket13.Profile = sketch26
pocket13.Length = Q("0.5 in")

# Sketch on XZ plane
sketch27 = body.newObject("Sketcher::SketchObject", "Sketch026")
sketch27.AttachmentSupport = (doc.getObject("XZ_Plane"), [""])
sketch27.MapMode = "FlatFace"
sketch27.AttachmentOffset = App.Placement(V(0, 0, -0.25 * 25.4), App.Rotation())
sketch27.addGeometry(Part.Circle(V(63.5, -397.5, 0), V(0, 0, 1), 2.7), False)
sketch27.addGeometry(Part.Circle(V(63.5, -293.1, 0), V(0, 0, 1), 2.7), False)
sketch27.addGeometry(Part.Circle(V(245.8, -293.1, 0), V(0, 0, 1), 2.7), False)
sketch27.addGeometry(Part.Circle(V(245.8, -397.5, 0), V(0, 0, 1), 2.7), False)
sketch27.addConstraint(Sketcher.Constraint("Equal", 0, 1))
sketch27.addConstraint(Sketcher.Constraint("Equal", 1, 2))
sketch27.addConstraint(Sketcher.Constraint("Equal", 2, 3))
sketch27.addConstraint(Sketcher.Constraint("Horizontal", 1, 3, 2, 3))
sketch27.addConstraint(Sketcher.Constraint("Horizontal", 0, 3, 3, 3))
sketch27.addConstraint(Sketcher.Constraint("Vertical", 0, 3, 1, 3))
sketch27.addConstraint(Sketcher.Constraint("Vertical", 2, 3, 3, 3))
sketch27.addConstraint(Sketcher.Constraint("Diameter", 0, Q("0.21 in")))
sketch27.addConstraint(Sketcher.Constraint("DistanceX", -1, 1, 0, 3, Q("2.5 in")))
sketch27.addConstraint(Sketcher.Constraint("DistanceY", 0, 3, -1, 1, Q("15.65 in")))
sketch27.addConstraint(Sketcher.Constraint("DistanceY", 1, 3, -1, 1, Q("11.54 in")))
sketch27.addConstraint(Sketcher.Constraint("DistanceX", -1, 1, 2, 3, Q("9.676 in")))
pocket14 = body.newObject("PartDesign::Pocket", "Pocket013")
pocket14.Profile = sketch27
pocket14.Length = Q("0.7 in")
pocket14.Reversed = True

# Sketch on XZ plane
sketch28 = body.newObject("Sketcher::SketchObject", "Sketch027")
sketch28.AttachmentSupport = (doc.getObject("XZ_Plane"), [""])
sketch28.MapMode = "FlatFace"
sketch28.AttachmentOffset = App.Placement(V(0, 0, -0.25 * 25.4), App.Rotation())
sketch28.addGeometry(Part.Circle(V(304.8, -309.9, 0), V(0, 0, 1), 3.2), False)
sketch28.addGeometry(Part.Circle(V(361.9, -337.8, 0), V(0, 0, 1), 3.2), False)
sketch28.addConstraint(Sketcher.Constraint("Equal", 0, 1))
sketch28.addConstraint(Sketcher.Constraint("Diameter", 0, Q("0.25 in")))
sketch28.addConstraint(Sketcher.Constraint("DistanceX", -1, 1, 0, 3, Q("12 in")))
sketch28.addConstraint(Sketcher.Constraint("DistanceY", 0, 3, -1, 1, Q("12.2 in")))
sketch28.addConstraint(Sketcher.Constraint("DistanceY", 1, 3, -1, 1, Q("13.3 in")))
sketch28.addConstraint(Sketcher.Constraint("DistanceX", -1, 1, 1, 3, Q("14.25 in")))
pocket15 = body.newObject("PartDesign::Pocket", "Pocket014")
pocket15.Profile = sketch28
pocket15.Length = Q("0.7 in")
pocket15.Reversed = True

# Sketch on YZ plane
sketch29 = body.newObject("Sketcher::SketchObject", "Sketch028")
sketch29.AttachmentSupport = (doc.getObject("YZ_Plane"), [""])
sketch29.MapMode = "FlatFace"
sketch29.addGeometry(Part.Circle(V(190.5, -454.8, 0), V(0, 0, 1), 3.2), False)
sketch29.addGeometry(Part.Circle(V(193.7, -302.4, 0), V(0, 0, 1), 3.2), False)
sketch29.addConstraint(Sketcher.Constraint("Equal", 0, 1))
sketch29.addConstraint(Sketcher.Constraint("Diameter", 0, Q("0.25 in")))
sketch29.addConstraint(Sketcher.Constraint("DistanceY", 0, 3, 1, 3, Q("6 in")))
sketch29.addConstraint(Sketcher.Constraint("DistanceX", -1, 1, 0, 3, Q("7.5 in")))
sketch29.addConstraint(Sketcher.Constraint("DistanceX", -1, 1, 1, 3, Q("7.625 in")))
sketch29.addConstraint(Sketcher.Constraint("DistanceY", 0, 3, -1, 1, 454.843833))
pocket16 = body.newObject("PartDesign::Pocket", "Pocket015")
pocket16.Profile = sketch29
pocket16.Length = Q("0.7 in")
pocket16.Reversed = True

# Sketch on YZ plane
sketch30 = body.newObject("Sketcher::SketchObject", "Sketch029")
sketch30.AttachmentSupport = (doc.getObject("YZ_Plane"), [""])
sketch30.MapMode = "FlatFace"
sketch30.addGeometry(Part.Circle(V(149.9, -424.2, 0), V(0, 0, 1), 3.2), False)
sketch30.addGeometry(Part.Circle(V(48.4, -290.9, 0), V(0, 0, 1), 3.2), False)
sketch30.addGeometry(Part.Circle(V(149.9, -290.9, 0), V(0, 0, 1), 3.2), False)
sketch30.addConstraint(Sketcher.Constraint("Equal", 0, 1))
sketch30.addConstraint(Sketcher.Constraint("Equal", 1, 2))
sketch30.addConstraint(Sketcher.Constraint("Horizontal", 1, 3, 2, 3))
sketch30.addConstraint(Sketcher.Constraint("Vertical", 0, 3, 2, 3))
sketch30.addConstraint(Sketcher.Constraint("Diameter", 0, Q("0.25 in")))
sketch30.addConstraint(Sketcher.Constraint("DistanceY", 0, 3, 1, 3, Q("5.25 in")))
sketch30.addConstraint(Sketcher.Constraint("DistanceX", -1, 1, 0, 3, Q("5.902 in")))
sketch30.addConstraint(Sketcher.Constraint("DistanceY", 0, 3, -1, 1, Q("16.702 in")))
sketch30.addConstraint(Sketcher.Constraint("DistanceX", -1, 1, 1, 3, Q("1.905 in")))
pocket17 = body.newObject("PartDesign::Pocket", "Pocket016")
pocket17.Profile = sketch30
pocket17.Length = Q("0.6 in")
pocket17.Reversed = True

# Sketch on YZ plane
sketch31 = body.newObject("Sketcher::SketchObject", "Sketch030")
sketch31.AttachmentSupport = (doc.getObject("YZ_Plane"), [""])
sketch31.MapMode = "FlatFace"
sketch31.AttachmentOffset = App.Placement(V(0, 0, 15 * 25.4), App.Rotation())
sketch31.addGeometry(Part.Circle(V(190.5, -454.8, 0), V(0, 0, 1), 3.3), False)
sketch31.addGeometry(Part.Circle(V(193.7, -302.4, 0), V(0, 0, 1), 3.3), False)
sketch31.addConstraint(Sketcher.Constraint("Equal", 0, 1))
sketch31.addConstraint(Sketcher.Constraint("Diameter", 0, Q("0.26 in")))
sketch31.addConstraint(Sketcher.Constraint("DistanceY", 0, 3, 1, 3, Q("6 in")))
sketch31.addConstraint(Sketcher.Constraint("DistanceX", -1, 1, 0, 3, Q("7.5 in")))
sketch31.addConstraint(Sketcher.Constraint("DistanceX", -1, 1, 1, 3, Q("7.625 in")))
sketch31.addConstraint(Sketcher.Constraint("DistanceY", 0, 3, -1, 1, 454.843833))
pocket18 = body.newObject("PartDesign::Pocket", "Pocket017")
pocket18.Profile = sketch31
pocket18.Length = Q("0.5 in")

# Sketch on YZ plane
sketch32 = body.newObject("Sketcher::SketchObject", "Sketch031")
sketch32.AttachmentSupport = (doc.getObject("YZ_Plane"), [""])
sketch32.MapMode = "FlatFace"
sketch32.AttachmentOffset = App.Placement(V(0, 0, 15 * 25.4), App.Rotation())
sketch32.addGeometry(Part.Circle(V(193.7, -302.4, 0), V(0, 0, 1), 3.3), False)
sketch32.addGeometry(Part.Circle(V(193.7, -302.4, 0), V(0, 0, 1), 3.2), False)
sketch32.addGeometry(Part.Circle(V(190.5, -454.8, 0), V(0, 0, 1), 3.3), False)
sketch32.addGeometry(Part.Circle(V(190.5, -454.8, 0), V(0, 0, 1), 3.2), False)
sketch32.addConstraint(Sketcher.Constraint("Coincident", 1, 3, 0, 3))
sketch32.addConstraint(Sketcher.Constraint("Coincident", 3, 3, 2, 3))
sketch32.addConstraint(Sketcher.Constraint("Equal", 0, 2))
sketch32.addConstraint(Sketcher.Constraint("Equal", 1, 3))
sketch32.addConstraint(Sketcher.Constraint("Diameter", 0, Q("0.26 in")))
sketch32.addConstraint(Sketcher.Constraint("Diameter", 1, Q("0.25 in")))
sketch32.addConstraint(Sketcher.Constraint("DistanceY", 2, 3, 0, 3, Q("6 in")))
sketch32.addConstraint(Sketcher.Constraint("DistanceX", -1, 1, 2, 3, Q("7.5 in")))
sketch32.addConstraint(Sketcher.Constraint("DistanceX", -1, 1, 0, 3, Q("7.625 in")))
sketch32.addConstraint(Sketcher.Constraint("DistanceY", 0, 3, -1, 1, 302.443833))
pad14 = body.newObject("PartDesign::Pad", "Pad013")
pad14.Profile = sketch32
pad14.Length = Q("0.25 in")
pad14.Reversed = True

doc.recompute()
